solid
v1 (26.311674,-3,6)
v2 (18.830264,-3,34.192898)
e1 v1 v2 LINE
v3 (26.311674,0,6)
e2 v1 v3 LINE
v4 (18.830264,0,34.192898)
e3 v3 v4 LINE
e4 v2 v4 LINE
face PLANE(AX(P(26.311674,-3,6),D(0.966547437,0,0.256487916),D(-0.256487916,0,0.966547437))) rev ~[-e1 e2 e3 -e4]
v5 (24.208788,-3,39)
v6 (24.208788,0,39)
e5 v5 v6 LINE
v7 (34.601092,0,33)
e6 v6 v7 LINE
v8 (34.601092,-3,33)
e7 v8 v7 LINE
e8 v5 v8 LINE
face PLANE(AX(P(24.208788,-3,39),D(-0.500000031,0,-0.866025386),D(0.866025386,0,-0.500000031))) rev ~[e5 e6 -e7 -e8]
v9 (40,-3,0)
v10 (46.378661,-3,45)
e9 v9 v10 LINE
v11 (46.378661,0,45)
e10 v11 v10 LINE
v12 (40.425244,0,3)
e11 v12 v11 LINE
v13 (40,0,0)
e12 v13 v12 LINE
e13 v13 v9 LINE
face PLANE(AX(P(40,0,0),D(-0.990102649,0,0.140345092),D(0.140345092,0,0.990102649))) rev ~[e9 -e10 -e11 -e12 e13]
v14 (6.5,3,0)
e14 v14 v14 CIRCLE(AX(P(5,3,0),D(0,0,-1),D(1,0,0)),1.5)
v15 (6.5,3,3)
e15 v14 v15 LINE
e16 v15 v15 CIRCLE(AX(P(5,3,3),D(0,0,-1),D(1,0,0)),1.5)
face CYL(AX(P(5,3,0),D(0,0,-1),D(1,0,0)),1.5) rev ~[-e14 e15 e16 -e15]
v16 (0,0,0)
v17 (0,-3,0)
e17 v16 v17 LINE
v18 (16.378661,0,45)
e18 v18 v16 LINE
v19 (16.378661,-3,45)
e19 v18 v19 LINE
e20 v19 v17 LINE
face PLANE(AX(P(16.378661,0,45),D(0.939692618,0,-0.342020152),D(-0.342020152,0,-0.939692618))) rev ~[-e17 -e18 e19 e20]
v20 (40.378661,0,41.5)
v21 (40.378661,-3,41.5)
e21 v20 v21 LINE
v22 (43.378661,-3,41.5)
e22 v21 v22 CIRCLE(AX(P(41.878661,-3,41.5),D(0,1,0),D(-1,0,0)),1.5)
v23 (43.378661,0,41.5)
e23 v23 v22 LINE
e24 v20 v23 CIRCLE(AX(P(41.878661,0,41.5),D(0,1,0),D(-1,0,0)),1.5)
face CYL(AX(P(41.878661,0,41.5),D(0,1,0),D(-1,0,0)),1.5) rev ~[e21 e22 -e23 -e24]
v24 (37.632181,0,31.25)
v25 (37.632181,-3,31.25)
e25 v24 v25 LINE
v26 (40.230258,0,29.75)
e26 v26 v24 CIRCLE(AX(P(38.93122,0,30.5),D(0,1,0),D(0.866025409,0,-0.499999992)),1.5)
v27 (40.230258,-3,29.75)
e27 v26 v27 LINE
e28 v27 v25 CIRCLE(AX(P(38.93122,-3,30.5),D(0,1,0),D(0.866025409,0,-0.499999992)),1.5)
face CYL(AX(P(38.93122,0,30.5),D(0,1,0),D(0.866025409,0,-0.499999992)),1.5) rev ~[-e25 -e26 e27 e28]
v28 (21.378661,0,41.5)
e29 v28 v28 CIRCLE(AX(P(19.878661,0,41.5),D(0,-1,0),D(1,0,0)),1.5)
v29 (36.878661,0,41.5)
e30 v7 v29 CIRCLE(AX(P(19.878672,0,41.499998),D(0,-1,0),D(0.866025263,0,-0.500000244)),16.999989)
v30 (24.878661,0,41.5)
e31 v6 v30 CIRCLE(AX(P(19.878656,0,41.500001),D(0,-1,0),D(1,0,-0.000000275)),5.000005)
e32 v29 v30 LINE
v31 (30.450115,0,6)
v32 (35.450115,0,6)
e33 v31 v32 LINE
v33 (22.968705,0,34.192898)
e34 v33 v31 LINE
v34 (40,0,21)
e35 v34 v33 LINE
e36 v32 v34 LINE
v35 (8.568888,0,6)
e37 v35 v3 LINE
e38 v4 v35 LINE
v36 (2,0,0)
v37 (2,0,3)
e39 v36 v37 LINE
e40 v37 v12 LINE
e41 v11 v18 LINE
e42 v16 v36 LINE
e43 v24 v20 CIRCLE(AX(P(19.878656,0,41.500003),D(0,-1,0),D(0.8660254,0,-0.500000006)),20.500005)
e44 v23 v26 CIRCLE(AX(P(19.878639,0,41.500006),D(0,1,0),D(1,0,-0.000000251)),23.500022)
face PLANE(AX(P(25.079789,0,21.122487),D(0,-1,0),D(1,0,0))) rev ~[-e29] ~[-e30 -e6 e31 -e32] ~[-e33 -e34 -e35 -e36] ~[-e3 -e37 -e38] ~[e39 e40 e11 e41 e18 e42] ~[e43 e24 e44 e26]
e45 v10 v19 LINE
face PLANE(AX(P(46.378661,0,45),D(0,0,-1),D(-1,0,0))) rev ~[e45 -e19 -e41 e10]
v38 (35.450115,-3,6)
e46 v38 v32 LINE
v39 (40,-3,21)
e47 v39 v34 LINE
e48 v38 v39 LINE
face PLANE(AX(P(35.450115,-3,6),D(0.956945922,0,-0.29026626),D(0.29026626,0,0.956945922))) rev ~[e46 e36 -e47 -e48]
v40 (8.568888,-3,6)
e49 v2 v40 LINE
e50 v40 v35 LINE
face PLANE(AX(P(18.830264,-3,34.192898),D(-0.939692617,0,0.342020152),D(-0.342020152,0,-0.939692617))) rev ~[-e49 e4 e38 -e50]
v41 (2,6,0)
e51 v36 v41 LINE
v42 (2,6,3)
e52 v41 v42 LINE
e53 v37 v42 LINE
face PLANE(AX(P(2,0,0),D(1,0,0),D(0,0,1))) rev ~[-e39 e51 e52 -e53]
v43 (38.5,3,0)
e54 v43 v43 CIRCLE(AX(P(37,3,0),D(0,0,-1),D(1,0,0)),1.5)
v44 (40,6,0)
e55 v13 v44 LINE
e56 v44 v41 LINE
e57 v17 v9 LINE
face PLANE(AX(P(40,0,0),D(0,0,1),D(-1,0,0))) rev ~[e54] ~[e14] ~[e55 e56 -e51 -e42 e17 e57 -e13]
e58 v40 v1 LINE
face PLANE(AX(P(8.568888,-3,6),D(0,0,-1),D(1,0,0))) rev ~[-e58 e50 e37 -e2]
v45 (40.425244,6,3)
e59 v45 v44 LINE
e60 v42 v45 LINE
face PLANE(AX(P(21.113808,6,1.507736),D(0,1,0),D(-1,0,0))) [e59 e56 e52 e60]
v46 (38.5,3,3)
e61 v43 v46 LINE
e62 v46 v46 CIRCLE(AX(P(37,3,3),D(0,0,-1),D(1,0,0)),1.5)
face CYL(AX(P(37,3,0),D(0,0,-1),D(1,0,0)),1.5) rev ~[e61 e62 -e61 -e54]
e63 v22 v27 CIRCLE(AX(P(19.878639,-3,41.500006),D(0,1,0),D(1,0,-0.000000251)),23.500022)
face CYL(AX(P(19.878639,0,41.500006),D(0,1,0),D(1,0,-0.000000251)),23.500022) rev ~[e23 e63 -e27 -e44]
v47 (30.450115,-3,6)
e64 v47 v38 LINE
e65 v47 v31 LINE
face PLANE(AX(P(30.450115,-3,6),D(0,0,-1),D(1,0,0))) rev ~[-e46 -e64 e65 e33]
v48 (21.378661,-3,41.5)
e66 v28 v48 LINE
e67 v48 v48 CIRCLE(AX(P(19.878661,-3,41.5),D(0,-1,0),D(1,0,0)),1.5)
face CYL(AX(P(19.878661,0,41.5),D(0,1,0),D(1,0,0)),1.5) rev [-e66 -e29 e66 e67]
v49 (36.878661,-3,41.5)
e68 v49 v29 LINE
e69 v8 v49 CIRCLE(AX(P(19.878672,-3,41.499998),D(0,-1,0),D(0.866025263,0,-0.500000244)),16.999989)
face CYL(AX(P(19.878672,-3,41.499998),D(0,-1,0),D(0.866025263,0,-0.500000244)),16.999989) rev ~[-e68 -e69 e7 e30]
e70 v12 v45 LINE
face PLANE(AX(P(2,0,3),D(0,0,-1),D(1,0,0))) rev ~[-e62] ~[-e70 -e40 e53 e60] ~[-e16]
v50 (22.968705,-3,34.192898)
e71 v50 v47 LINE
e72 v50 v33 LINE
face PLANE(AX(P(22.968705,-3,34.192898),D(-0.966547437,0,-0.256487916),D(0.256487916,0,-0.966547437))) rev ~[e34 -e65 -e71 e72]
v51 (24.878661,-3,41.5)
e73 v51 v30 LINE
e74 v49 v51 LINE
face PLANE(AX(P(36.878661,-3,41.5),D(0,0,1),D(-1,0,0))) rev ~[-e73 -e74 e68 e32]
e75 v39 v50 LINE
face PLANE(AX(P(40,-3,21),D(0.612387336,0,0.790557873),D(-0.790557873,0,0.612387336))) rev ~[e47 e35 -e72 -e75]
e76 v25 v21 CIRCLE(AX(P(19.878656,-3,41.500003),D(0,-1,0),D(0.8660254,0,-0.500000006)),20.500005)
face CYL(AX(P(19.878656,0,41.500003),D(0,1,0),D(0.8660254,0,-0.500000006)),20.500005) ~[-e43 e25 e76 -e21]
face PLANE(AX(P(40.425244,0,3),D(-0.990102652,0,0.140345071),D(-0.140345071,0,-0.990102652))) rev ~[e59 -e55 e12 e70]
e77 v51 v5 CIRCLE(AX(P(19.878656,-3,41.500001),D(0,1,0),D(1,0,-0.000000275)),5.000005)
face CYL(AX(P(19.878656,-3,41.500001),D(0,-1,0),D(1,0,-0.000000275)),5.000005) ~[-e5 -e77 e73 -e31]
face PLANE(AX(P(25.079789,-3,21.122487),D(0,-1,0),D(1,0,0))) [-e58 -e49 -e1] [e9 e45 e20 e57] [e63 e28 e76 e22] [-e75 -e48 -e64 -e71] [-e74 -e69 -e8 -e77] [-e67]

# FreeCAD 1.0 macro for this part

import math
import FreeCAD as App
import Part
import Sketcher
from FreeCAD import Vector
Q = App.Units.Quantity

doc = App.newDocument("Part")
body = doc.addObject("PartDesign::Body", "Body")

# Sketch on XZ plane
sketch1 = body.newObject("Sketcher::SketchObject", "Sketch")
sketch1.AttachmentSupport = (doc.getObject("XZ_Plane"), [""])
sketch1.MapMode = "FlatFace"
sketch1.addGeometry([
    Part.LineSegment(Vector(16.378661, 45, 0), Vector(0, 0, 0)),  # 0
    Part.LineSegment(Vector(0, 0, 0), Vector(40, 0, 0)),  # 1
    Part.LineSegment(Vector(40, 0, 0), Vector(46.378661, 45, 0)),  # 2
    Part.LineSegment(Vector(46.378661, 45, 0), Vector(16.378661, 45, 0)),  # 3
    Part.ArcOfCircle(Part.Circle(Vector(41.878661, 41.5, 0), Vector(0, 0, 1), 1.5), math.radians(0), math.radians(180)),  # 4
    Part.ArcOfCircle(Part.Circle(Vector(19.878639, 41.500006, 0), Vector(0, 0, 1), 23.500022), math.radians(-29.999986), math.radians(-0.000014)),  # 5
    Part.ArcOfCircle(Part.Circle(Vector(38.93122, 30.5, 0), Vector(0, 0, 1), 1.5), math.radians(150.000015), math.radians(330.000001)),  # 6
    Part.ArcOfCircle(Part.Circle(Vector(19.878656, 41.500003, 0), Vector(0, 0, 1), 20.500005), math.radians(-30), math.radians(-0.000008)),  # 7
    Part.Circle(Vector(19.878661, 41.5, 0), Vector(0, 0, 1), 1.5),  # 8
], False)
sketch1.addConstraint([
    Sketcher.Constraint("Coincident", 0, 2, 1, 1),
    Sketcher.Constraint("Coincident", 1, 2, 2, 1),
    Sketcher.Constraint("Coincident", 2, 2, 3, 1),
    Sketcher.Constraint("Coincident", 3, 2, 0, 1),
    Sketcher.Constraint("Coincident", 4, 1, 5, 2),
    Sketcher.Constraint("Coincident", 5, 1, 6, 2),
    Sketcher.Constraint("Coincident", 6, 1, 7, 1),
    Sketcher.Constraint("Coincident", 7, 2, 4, 2),
    Sketcher.Constraint("Horizontal", 1),
    Sketcher.Constraint("Horizontal", 3),
    Sketcher.Constraint("Coincident", 0, 2, -1, 1),
    Sketcher.Constraint("Coincident", 8, 3, 7, 3),
    Sketcher.Constraint("Diameter", 8, 3.0),
    Sketcher.Constraint("Radius", 4, 1.5),
    Sketcher.Constraint("Radius", 6, 1.5),
    Sketcher.Constraint("DistanceX", 1, 1, 1, 2, 40.0),
    Sketcher.Constraint("DistanceX", 3, 2, 3, 1, 30.0),
    Sketcher.Constraint("DistanceY", -1, 1, 2, 2, 45.0),
    Sketcher.Constraint("DistanceY", 6, 3, 4, 3, 11.0),
    Sketcher.Constraint("DistanceY", 6, 3, 8, 3, 11.0),
    Sketcher.Constraint("DistanceX", 8, 3, 4, 3, 22.0),
    Sketcher.Constraint("DistanceX", 4, 1, 2, 2, 3.0),
    Sketcher.Constraint("DistanceY", 6, 3, 4, 1, 11.0),
    Sketcher.Constraint("DistanceY", 6, 3, 7, 2, 11.0),
    Sketcher.Constraint("DistanceY", -1, 1, 4, 3, 41.5),
    Sketcher.Constraint("DistanceY", 5, 1, 6, 1, 1.5),
    Sketcher.Constraint("DistanceY", -1, 1, 5, 1, 29.75),
    Sketcher.Constraint("Distance", 0, 47.888),
    Sketcher.Constraint("Radius", 5, 23.500022),
])
pad1 = body.newObject("PartDesign::Pad", "Pad")
pad1.Profile = sketch1
pad1.Length = 3

# Sketch on XZ plane
sketch2 = body.newObject("Sketcher::SketchObject", "Sketch001")
sketch2.AttachmentSupport = (doc.getObject("XZ_Plane"), [""])
sketch2.MapMode = "FlatFace"
sketch2.addGeometry([
    Part.LineSegment(Vector(40.425244, 3, 0), Vector(40, 0, 0)),
    Part.LineSegment(Vector(40, 0, 0), Vector(2, 0, 0)),
    Part.LineSegment(Vector(2, 0, 0), Vector(2, 3, 0)),
    Part.LineSegment(Vector(2, 3, 0), Vector(40.425244, 3, 0)),
], False)
sketch2.addConstraint([
    Sketcher.Constraint("Coincident", 0, 2, 1, 1),
    Sketcher.Constraint("Coincident", 1, 2, 2, 1),
    Sketcher.Constraint("Coincident", 2, 2, 3, 1),
    Sketcher.Constraint("Coincident", 3, 2, 0, 1),
    Sketcher.Constraint("Horizontal", 1),
    Sketcher.Constraint("Vertical", 2),
    Sketcher.Constraint("Horizontal", 3),
    Sketcher.Constraint("PointOnObject", 0, 2, -1),
    Sketcher.Constraint("DistanceX", 1, 2, 1, 1, 38.0),
    Sketcher.Constraint("DistanceY", 2, 1, 2, 2, 3.0),
    Sketcher.Constraint("DistanceX", -1, 1, 0, 2, 40.0),
    Sketcher.Constraint("Distance", 0, 3.029989),
])
pad2 = body.newObject("PartDesign::Pad", "Pad001")
pad2.Profile = sketch2
pad2.Length = 6
pad2.Reversed = True

# Sketch on XY plane
sketch3 = body.newObject("Sketcher::SketchObject", "Sketch002")
sketch3.AttachmentSupport = (doc.getObject("XY_Plane"), [""])
sketch3.MapMode = "FlatFace"
sketch3.addGeometry([
    Part.Circle(Vector(37, 3, 0), Vector(0, 0, 1), 1.5),
    Part.Circle(Vector(5, 3, 0), Vector(0, 0, 1), 1.5),
], False)
sketch3.addConstraint([
    Sketcher.Constraint("Equal", 0, 1),
    Sketcher.Constraint("Horizontal", 0, 3, 1, 3),
    Sketcher.Constraint("Diameter", 0, 3.0),
    Sketcher.Constraint("DistanceX", -1, 1, 0, 3, 37.0),
    Sketcher.Constraint("DistanceY", -1, 1, 0, 3, 3.0),
    Sketcher.Constraint("DistanceX", -1, 1, 1, 3, 5.0),
])
pocket1 = body.newObject("PartDesign::Pocket", "Pocket")
pocket1.Profile = sketch3
pocket1.Length = 25
pocket1.Reversed = True

# Sketch on XZ plane
sketch4 = body.newObject("Sketcher::SketchObject", "Sketch003")
sketch4.AttachmentSupport = (doc.getObject("XZ_Plane"), [""])
sketch4.MapMode = "FlatFace"
sketch4.AttachmentOffset = App.Placement(Vector(0, 0, 3), App.Rotation())
sketch4.addGeometry([
    Part.LineSegment(Vector(18.830264, 34.192898, 0), Vector(8.568888, 6, 0)),  # 0
    Part.LineSegment(Vector(8.568888, 6, 0), Vector(26.311674, 6, 0)),  # 1
    Part.LineSegment(Vector(26.311674, 6, 0), Vector(18.830264, 34.192898, 0)),  # 2
    Part.LineSegment(Vector(40, 21, 0), Vector(22.968705, 34.192898, 0)),  # 3
    Part.LineSegment(Vector(22.968705, 34.192898, 0), Vector(30.450115, 6, 0)),  # 4
    Part.LineSegment(Vector(30.450115, 6, 0), Vector(35.450115, 6, 0)),  # 5
    Part.LineSegment(Vector(35.450115, 6, 0), Vector(40, 21, 0)),  # 6
    Part.ArcOfCircle(Part.Circle(Vector(19.878656, 41.500001, 0), Vector(0, 0, 1), 5.000005), math.radians(-29.999985), math.radians(-0.000016)),  # 7
    Part.LineSegment(Vector(24.208788, 39, 0), Vector(34.601092, 33, 0)),  # 8
    Part.ArcOfCircle(Part.Circle(Vector(19.878672, 41.499998, 0), Vector(0, 0, 1), 16.999989), math.radians(-30.000016), math.radians(0.000005)),  # 9
    Part.LineSegment(Vector(36.878661, 41.5, 0), Vector(24.878661, 41.5, 0)),  # 10
], False)
sketch4.addConstraint([
    Sketcher.Constraint("Coincident", 0, 2, 1, 1),
    Sketcher.Constraint("Coincident", 1, 2, 2, 1),
    Sketcher.Constraint("Coincident", 2, 2, 0, 1),
    Sketcher.Constraint("Coincident", 3, 2, 4, 1),
    Sketcher.Constraint("Coincident", 4, 2, 5, 1),
    Sketcher.Constraint("Coincident", 5, 2, 6, 1),
    Sketcher.Constraint("Coincident", 6, 2, 3, 1),
    Sketcher.Constraint("Coincident", 7, 1, 8, 1),
    Sketcher.Constraint("Coincident", 8, 2, 9, 1),
    Sketcher.Constraint("Coincident", 9, 2, 10, 1),
    Sketcher.Constraint("Coincident", 10, 2, 7, 2),
    Sketcher.Constraint("Horizontal", 1),
    Sketcher.Constraint("Horizontal", 5),
    Sketcher.Constraint("Horizontal", 10),
    Sketcher.Constraint("Parallel", 2, 4),
    Sketcher.Constraint("Horizontal", 2, 2, 3, 2),
    Sketcher.Constraint("Horizontal", 1, 2, 4, 2),
    Sketcher.Constraint("Horizontal", 7, 3, 9, 2),
    Sketcher.Constraint("DistanceX", 5, 1, 5, 2, 5.0),
    Sketcher.Constraint("DistanceX", 10, 2, 10, 1, 12.0),
    Sketcher.Constraint("Angle", 0, Q("-110.000001 deg")),
    Sketcher.Constraint("Angle", 8, Q("-30.000002 deg")),
    Sketcher.Constraint("Distance", 8, 11.999999),
    Sketcher.Constraint("DistanceY", -1, 1, 0, 2, 6.0),
    Sketcher.Constraint("DistanceX", -1, 1, 6, 2, 40.0),
    Sketcher.Constraint("DistanceY", -1, 1, 6, 2, 21.0),
    Sketcher.Constraint("DistanceY", -1, 1, 7, 1, 39.0),
    Sketcher.Constraint("DistanceY", -1, 1, 7, 3, 41.500001),
    Sketcher.Constraint("DistanceY", -1, 1, 9, 3, 41.499998),
    Sketcher.Constraint("Radius", 9, 16.999989),
    Sketcher.Constraint("DistanceX", 9, 3, 1, 2, 6.433002),
    Sketcher.Constraint("DistanceY", 2, 2, 9, 3, 7.3071),
    Sketcher.Constraint("Distance", 3, 21.543388),
    Sketcher.Constraint("DistanceX", 1, 1, 1, 2, 17.742786),
    Sketcher.Constraint("DistanceX", -1, 1, 7, 1, 24.208788),
])
pocket2 = body.newObject("PartDesign::Pocket", "Pocket001")
pocket2.Profile = sketch4
pocket2.Length = 25

doc.recompute()
